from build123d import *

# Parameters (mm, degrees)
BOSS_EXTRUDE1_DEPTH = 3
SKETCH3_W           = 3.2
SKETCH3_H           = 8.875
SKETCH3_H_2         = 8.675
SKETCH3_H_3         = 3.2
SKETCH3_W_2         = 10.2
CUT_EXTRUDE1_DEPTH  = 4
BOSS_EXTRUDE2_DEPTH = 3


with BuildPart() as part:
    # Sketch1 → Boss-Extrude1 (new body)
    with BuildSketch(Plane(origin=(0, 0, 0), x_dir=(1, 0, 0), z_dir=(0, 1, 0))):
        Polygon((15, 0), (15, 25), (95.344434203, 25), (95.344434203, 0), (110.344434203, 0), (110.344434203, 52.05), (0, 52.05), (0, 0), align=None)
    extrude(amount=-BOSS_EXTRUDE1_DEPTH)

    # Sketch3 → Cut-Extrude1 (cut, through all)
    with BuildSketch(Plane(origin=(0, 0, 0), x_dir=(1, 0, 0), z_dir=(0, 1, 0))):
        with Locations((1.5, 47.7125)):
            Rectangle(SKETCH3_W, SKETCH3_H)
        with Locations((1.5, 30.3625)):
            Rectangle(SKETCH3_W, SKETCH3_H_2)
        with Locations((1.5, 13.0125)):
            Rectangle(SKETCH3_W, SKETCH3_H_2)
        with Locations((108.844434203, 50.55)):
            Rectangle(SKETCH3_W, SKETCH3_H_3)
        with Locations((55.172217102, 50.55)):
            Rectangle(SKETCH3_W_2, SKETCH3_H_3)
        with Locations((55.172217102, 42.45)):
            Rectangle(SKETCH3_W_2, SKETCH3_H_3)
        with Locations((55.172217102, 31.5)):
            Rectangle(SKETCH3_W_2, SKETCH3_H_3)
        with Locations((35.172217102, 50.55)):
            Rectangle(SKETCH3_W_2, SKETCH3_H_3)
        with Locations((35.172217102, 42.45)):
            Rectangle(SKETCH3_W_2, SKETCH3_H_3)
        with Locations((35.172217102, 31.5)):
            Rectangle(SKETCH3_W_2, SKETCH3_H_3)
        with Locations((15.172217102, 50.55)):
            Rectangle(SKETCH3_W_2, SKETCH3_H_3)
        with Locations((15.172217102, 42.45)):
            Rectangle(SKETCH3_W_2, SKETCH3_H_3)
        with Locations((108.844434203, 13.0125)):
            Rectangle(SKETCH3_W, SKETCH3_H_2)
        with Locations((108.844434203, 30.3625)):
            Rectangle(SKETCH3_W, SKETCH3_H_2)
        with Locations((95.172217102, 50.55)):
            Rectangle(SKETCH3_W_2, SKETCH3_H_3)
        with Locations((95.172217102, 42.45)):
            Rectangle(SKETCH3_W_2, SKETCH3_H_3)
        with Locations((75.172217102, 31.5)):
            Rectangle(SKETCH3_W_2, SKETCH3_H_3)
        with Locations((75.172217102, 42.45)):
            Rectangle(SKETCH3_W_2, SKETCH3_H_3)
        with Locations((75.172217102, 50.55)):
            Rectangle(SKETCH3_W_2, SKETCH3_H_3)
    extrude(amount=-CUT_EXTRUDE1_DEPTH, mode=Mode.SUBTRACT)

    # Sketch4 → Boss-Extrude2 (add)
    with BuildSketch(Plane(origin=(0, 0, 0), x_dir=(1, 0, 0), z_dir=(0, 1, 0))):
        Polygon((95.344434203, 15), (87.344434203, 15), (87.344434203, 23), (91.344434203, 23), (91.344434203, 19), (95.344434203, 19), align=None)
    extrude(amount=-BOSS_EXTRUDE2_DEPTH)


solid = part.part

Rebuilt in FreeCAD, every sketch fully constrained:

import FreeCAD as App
import Part
import Sketcher
from FreeCAD import Vector
Q = App.Units.Quantity

doc = App.newDocument("Part")
body = doc.addObject("PartDesign::Body", "Body")

# Sketch on XZ plane
sketch1 = doc.addObject("Sketcher::SketchObject", "Sketch")
body.addObject(sketch1)
sketch1.AttachmentSupport = (doc.XZ_Plane, [""])
sketch1.MapMode = "FlatFace"
sketch1.addGeometry([
    Part.LineSegment(Vector(15, 0, 0), Vector(15, -25, 0)),  # 0
    Part.LineSegment(Vector(15, -25, 0), Vector(95, -25, 0)),  # 1
    Part.LineSegment(Vector(95, -25, 0), Vector(95, 0, 0)),  # 2
    Part.LineSegment(Vector(95, 0, 0), Vector(110, 0, 0)),  # 3
    Part.LineSegment(Vector(110, 0, 0), Vector(110, -52, 0)),  # 4
    Part.LineSegment(Vector(110, -52, 0), Vector(0, -52, 0)),  # 5
    Part.LineSegment(Vector(0, -52, 0), Vector(0, 0, 0)),  # 6
    Part.LineSegment(Vector(0, 0, 0), Vector(15, 0, 0)),  # 7
], False)
sketch1.addConstraint([
    Sketcher.Constraint("Coincident", 0, 2, 1, 1),
    Sketcher.Constraint("Coincident", 1, 2, 2, 1),
    Sketcher.Constraint("Coincident", 2, 2, 3, 1),
    Sketcher.Constraint("Coincident", 3, 2, 4, 1),
    Sketcher.Constraint("Coincident", 4, 2, 5, 1),
    Sketcher.Constraint("Coincident", 5, 2, 6, 1),
    Sketcher.Constraint("Coincident", 6, 2, 7, 1),
    Sketcher.Constraint("Coincident", 7, 2, 0, 1),
    Sketcher.Constraint("Vertical", 0),
    Sketcher.Constraint("Horizontal", 1),
    Sketcher.Constraint("Vertical", 2),
    Sketcher.Constraint("Horizontal", 3),
    Sketcher.Constraint("Vertical", 4),
    Sketcher.Constraint("Horizontal", 5),
    Sketcher.Constraint("Vertical", 6),
    Sketcher.Constraint("Horizontal", 7),
    Sketcher.Constraint("Coincident", 6, 2, -1, 1),
    Sketcher.Constraint("PointOnObject", 2, 2, -1),
    Sketcher.Constraint("Equal", 3, 7),
    Sketcher.Constraint("DistanceX", 3, 1, 3, 2, Q("15 mm")),
    Sketcher.Constraint("DistanceY", 0, 2, 0, 1, Q("25 mm")),
    Sketcher.Constraint("DistanceY", 4, 2, 4, 1, Q("52.05 mm")),
    Sketcher.Constraint("DistanceX", 1, 1, 1, 2, Q("80.344434 mm")),
])
pad1 = doc.addObject("PartDesign::Pad", "Pad")
body.addObject(pad1)
pad1.Profile = sketch1
pad1.Length = 3

# Sketch on XZ plane
sketch2 = doc.addObject("Sketcher::SketchObject", "Sketch001")
body.addObject(sketch2)
sketch2.AttachmentSupport = (doc.XZ_Plane, [""])
sketch2.MapMode = "FlatFace"
sketch2.addGeometry([
    Part.LineSegment(Vector(-0.1, -52.1, 0), Vector(-0.1, -43.3, 0)),  # 0
    Part.LineSegment(Vector(-0.1, -43.3, 0), Vector(3.1, -43.3, 0)),  # 1
    Part.LineSegment(Vector(3.1, -43.3, 0), Vector(3.1, -52.1, 0)),  # 2
    Part.LineSegment(Vector(3.1, -52.1, 0), Vector(-0.1, -52.1, 0)),  # 3
    Part.LineSegment(Vector(-0.1, -34.7, 0), Vector(-0.1, -26, 0)),  # 4
    Part.LineSegment(Vector(-0.1, -26, 0), Vector(3.1, -26, 0)),  # 5
    Part.LineSegment(Vector(3.1, -26, 0), Vector(3.1, -34.7, 0)),  # 6
    Part.LineSegment(Vector(3.1, -34.7, 0), Vector(-0.1, -34.7, 0)),  # 7
    Part.LineSegment(Vector(-0.1, -17.4, 0), Vector(-0.1, -8.7, 0)),  # 8
    Part.LineSegment(Vector(-0.1, -8.7, 0), Vector(3.1, -8.7, 0)),  # 9
    Part.LineSegment(Vector(3.1, -8.7, 0), Vector(3.1, -17.4, 0)),  # 10
    Part.LineSegment(Vector(3.1, -17.4, 0), Vector(-0.1, -17.4, 0)),  # 11
    Part.LineSegment(Vector(107.2, -52.1, 0), Vector(107.2, -49, 0)),  # 12
    Part.LineSegment(Vector(107.2, -49, 0), Vector(110.4, -49, 0)),  # 13
    Part.LineSegment(Vector(110.4, -49, 0), Vector(110.4, -52.1, 0)),  # 14
    Part.LineSegment(Vector(110.4, -52.1, 0), Vector(107.2, -52.1, 0)),  # 15
    Part.LineSegment(Vector(50.1, -52.1, 0), Vector(50.1, -49, 0)),  # 16
    Part.LineSegment(Vector(50.1, -49, 0), Vector(60.3, -49, 0)),  # 17
    Part.LineSegment(Vector(60.3, -49, 0), Vector(60.3, -52.1, 0)),  # 18
    Part.LineSegment(Vector(60.3, -52.1, 0), Vector(50.1, -52.1, 0)),  # 19
    Part.LineSegment(Vector(50.1, -44, 0), Vector(50.1, -40.9, 0)),  # 20
    Part.LineSegment(Vector(50.1, -40.9, 0), Vector(60.3, -40.9, 0)),  # 21
    Part.LineSegment(Vector(60.3, -40.9, 0), Vector(60.3, -44, 0)),  # 22
    Part.LineSegment(Vector(60.3, -44, 0), Vector(50.1, -44, 0)),  # 23
    Part.LineSegment(Vector(50.1, -33.1, 0), Vector(50.1, -29.9, 0)),  # 24
    Part.LineSegment(Vector(50.1, -29.9, 0), Vector(60.3, -29.9, 0)),  # 25
    Part.LineSegment(Vector(60.3, -29.9, 0), Vector(60.3, -33.1, 0)),  # 26
    Part.LineSegment(Vector(60.3, -33.1, 0), Vector(50.1, -33.1, 0)),  # 27
    Part.LineSegment(Vector(30.1, -52.1, 0), Vector(30.1, -49, 0)),  # 28
    Part.LineSegment(Vector(30.1, -49, 0), Vector(40.3, -49, 0)),  # 29
    Part.LineSegment(Vector(40.3, -49, 0), Vector(40.3, -52.1, 0)),  # 30
    Part.LineSegment(Vector(40.3, -52.1, 0), Vector(30.1, -52.1, 0)),  # 31
    Part.LineSegment(Vector(30.1, -44, 0), Vector(30.1, -40.9, 0)),  # 32
    Part.LineSegment(Vector(30.1, -40.9, 0), Vector(40.3, -40.9, 0)),  # 33
    Part.LineSegment(Vector(40.3, -40.9, 0), Vector(40.3, -44, 0)),  # 34
    Part.LineSegment(Vector(40.3, -44, 0), Vector(30.1, -44, 0)),  # 35
    Part.LineSegment(Vector(30.1, -33.1, 0), Vector(30.1, -29.9, 0)),  # 36
    Part.LineSegment(Vector(30.1, -29.9, 0), Vector(40.3, -29.9, 0)),  # 37
    Part.LineSegment(Vector(40.3, -29.9, 0), Vector(40.3, -33.1, 0)),  # 38
    Part.LineSegment(Vector(40.3, -33.1, 0), Vector(30.1, -33.1, 0)),  # 39
    Part.LineSegment(Vector(10.1, -52.1, 0), Vector(10.1, -49, 0)),  # 40
    Part.LineSegment(Vector(10.1, -49, 0), Vector(20.3, -49, 0)),  # 41
    Part.LineSegment(Vector(20.3, -49, 0), Vector(20.3, -52.1, 0)),  # 42
    Part.LineSegment(Vector(20.3, -52.1, 0), Vector(10.1, -52.1, 0)),  # 43
    Part.LineSegment(Vector(10.1, -44, 0), Vector(10.1, -40.9, 0)),  # 44
    Part.LineSegment(Vector(10.1, -40.9, 0), Vector(20.3, -40.9, 0)),  # 45
    Part.LineSegment(Vector(20.3, -40.9, 0), Vector(20.3, -44, 0)),  # 46
    Part.LineSegment(Vector(20.3, -44, 0), Vector(10.1, -44, 0)),  # 47
    Part.LineSegment(Vector(107.2, -17.4, 0), Vector(107.2, -8.7, 0)),  # 48
    Part.LineSegment(Vector(107.2, -8.7, 0), Vector(110.4, -8.7, 0)),  # 49
    Part.LineSegment(Vector(110.4, -8.7, 0), Vector(110.4, -17.4, 0)),  # 50
    Part.LineSegment(Vector(110.4, -17.4, 0), Vector(107.2, -17.4, 0)),  # 51
    Part.LineSegment(Vector(107.2, -34.7, 0), Vector(107.2, -26, 0)),  # 52
    Part.LineSegment(Vector(107.2, -26, 0), Vector(110.4, -26, 0)),  # 53
    Part.LineSegment(Vector(110.4, -26, 0), Vector(110.4, -34.7, 0)),  # 54
    Part.LineSegment(Vector(110.4, -34.7, 0), Vector(107.2, -34.7, 0)),  # 55
    Part.LineSegment(Vector(90.1, -52.1, 0), Vector(90.1, -49, 0)),  # 56
    Part.LineSegment(Vector(90.1, -49, 0), Vector(100.3, -49, 0)),  # 57
    Part.LineSegment(Vector(100.3, -49, 0), Vector(100.3, -52.1, 0)),  # 58
    Part.LineSegment(Vector(100.3, -52.1, 0), Vector(90.1, -52.1, 0)),  # 59
    Part.LineSegment(Vector(90.1, -44, 0), Vector(90.1, -40.9, 0)),  # 60
    Part.LineSegment(Vector(90.1, -40.9, 0), Vector(100.3, -40.9, 0)),  # 61
    Part.LineSegment(Vector(100.3, -40.9, 0), Vector(100.3, -44, 0)),  # 62
    Part.LineSegment(Vector(100.3, -44, 0), Vector(90.1, -44, 0)),  # 63
    Part.LineSegment(Vector(70.1, -33.1, 0), Vector(70.1, -29.9, 0)),  # 64
    Part.LineSegment(Vector(70.1, -29.9, 0), Vector(80.3, -29.9, 0)),  # 65
    Part.LineSegment(Vector(80.3, -29.9, 0), Vector(80.3, -33.1, 0)),  # 66
    Part.LineSegment(Vector(80.3, -33.1, 0), Vector(70.1, -33.1, 0)),  # 67
    Part.LineSegment(Vector(70.1, -44, 0), Vector(70.1, -40.9, 0)),  # 68
    Part.LineSegment(Vector(70.1, -40.9, 0), Vector(80.3, -40.9, 0)),  # 69
    Part.LineSegment(Vector(80.3, -40.9, 0), Vector(80.3, -44, 0)),  # 70
    Part.LineSegment(Vector(80.3, -44, 0), Vector(70.1, -44, 0)),  # 71
    Part.LineSegment(Vector(70.1, -52.1, 0), Vector(70.1, -49, 0)),  # 72
    Part.LineSegment(Vector(70.1, -49, 0), Vector(80.3, -49, 0)),  # 73
    Part.LineSegment(Vector(80.3, -49, 0), Vector(80.3, -52.1, 0)),  # 74
    Part.LineSegment(Vector(80.3, -52.1, 0), Vector(70.1, -52.1, 0)),  # 75
], False)
sketch2.addConstraint([
    Sketcher.Constraint("Coincident", 0, 2, 1, 1),
    Sketcher.Constraint("Coincident", 1, 2, 2, 1),
    Sketcher.Constraint("Coincident", 2, 2, 3, 1),
    Sketcher.Constraint("Coincident", 3, 2, 0, 1),
    Sketcher.Constraint("Coincident", 4, 2, 5, 1),
    Sketcher.Constraint("Coincident", 5, 2, 6, 1),
    Sketcher.Constraint("Coincident", 6, 2, 7, 1),
    Sketcher.Constraint("Coincident", 7, 2, 4, 1),
    Sketcher.Constraint("Coincident", 8, 2, 9, 1),
    Sketcher.Constraint("Coincident", 9, 2, 10, 1),
    Sketcher.Constraint("Coincident", 10, 2, 11, 1),
    Sketcher.Constraint("Coincident", 11, 2, 8, 1),
    Sketcher.Constraint("Coincident", 12, 2, 13, 1),
    Sketcher.Constraint("Coincident", 13, 2, 14, 1),
    Sketcher.Constraint("Coincident", 14, 2, 15, 1),
    Sketcher.Constraint("Coincident", 15, 2, 12, 1),
    Sketcher.Constraint("Coincident", 16, 2, 17, 1),
    Sketcher.Constraint("Coincident", 17, 2, 18, 1),
    Sketcher.Constraint("Coincident", 18, 2, 19, 1),
    Sketcher.Constraint("Coincident", 19, 2, 16, 1),
    Sketcher.Constraint("Coincident", 20, 2, 21, 1),
    Sketcher.Constraint("Coincident", 21, 2, 22, 1),
    Sketcher.Constraint("Coincident", 22, 2, 23, 1),
    Sketcher.Constraint("Coincident", 23, 2, 20, 1),
    Sketcher.Constraint("Coincident", 24, 2, 25, 1),
    Sketcher.Constraint("Coincident", 25, 2, 26, 1),
    Sketcher.Constraint("Coincident", 26, 2, 27, 1),
    Sketcher.Constraint("Coincident", 27, 2, 24, 1),
    Sketcher.Constraint("Coincident", 28, 2, 29, 1),
    Sketcher.Constraint("Coincident", 29, 2, 30, 1),
    Sketcher.Constraint("Coincident", 30, 2, 31, 1),
    Sketcher.Constraint("Coincident", 31, 2, 28, 1),
    Sketcher.Constraint("Coincident", 32, 2, 33, 1),
    Sketcher.Constraint("Coincident", 33, 2, 34, 1),
    Sketcher.Constraint("Coincident", 34, 2, 35, 1),
    Sketcher.Constraint("Coincident", 35, 2, 32, 1),
    Sketcher.Constraint("Coincident", 36, 2, 37, 1),
    Sketcher.Constraint("Coincident", 37, 2, 38, 1),
    Sketcher.Constraint("Coincident", 38, 2, 39, 1),
    Sketcher.Constraint("Coincident", 39, 2, 36, 1),
    Sketcher.Constraint("Coincident", 40, 2, 41, 1),
    Sketcher.Constraint("Coincident", 41, 2, 42, 1),
    Sketcher.Constraint("Coincident", 42, 2, 43, 1),
    Sketcher.Constraint("Coincident", 43, 2, 40, 1),
    Sketcher.Constraint("Coincident", 44, 2, 45, 1),
    Sketcher.Constraint("Coincident", 45, 2, 46, 1),
    Sketcher.Constraint("Coincident", 46, 2, 47, 1),
    Sketcher.Constraint("Coincident", 47, 2, 44, 1),
    Sketcher.Constraint("Coincident", 48, 2, 49, 1),
    Sketcher.Constraint("Coincident", 49, 2, 50, 1),
    Sketcher.Constraint("Coincident", 50, 2, 51, 1),
    Sketcher.Constraint("Coincident", 51, 2, 48, 1),
    Sketcher.Constraint("Coincident", 52, 2, 53, 1),
    Sketcher.Constraint("Coincident", 53, 2, 54, 1),
    Sketcher.Constraint("Coincident", 54, 2, 55, 1),
    Sketcher.Constraint("Coincident", 55, 2, 52, 1),
    Sketcher.Constraint("Coincident", 56, 2, 57, 1),
    Sketcher.Constraint("Coincident", 57, 2, 58, 1),
    Sketcher.Constraint("Coincident", 58, 2, 59, 1),
    Sketcher.Constraint("Coincident", 59, 2, 56, 1),
    Sketcher.Constraint("Coincident", 60, 2, 61, 1),
    Sketcher.Constraint("Coincident", 61, 2, 62, 1),
    Sketcher.Constraint("Coincident", 62, 2, 63, 1),
    Sketcher.Constraint("Coincident", 63, 2, 60, 1),
    Sketcher.Constraint("Coincident", 64, 2, 65, 1),
    Sketcher.Constraint("Coincident", 65, 2, 66, 1),
    Sketcher.Constraint("Coincident", 66, 2, 67, 1),
    Sketcher.Constraint("Coincident", 67, 2, 64, 1),
    Sketcher.Constraint("Coincident", 68, 2, 69, 1),
    Sketcher.Constraint("Coincident", 69, 2, 70, 1),
    Sketcher.Constraint("Coincident", 70, 2, 71, 1),
    Sketcher.Constraint("Coincident", 71, 2, 68, 1),
    Sketcher.Constraint("Coincident", 72, 2, 73, 1),
    Sketcher.Constraint("Coincident", 73, 2, 74, 1),
    Sketcher.Constraint("Coincident", 74, 2, 75, 1),
    Sketcher.Constraint("Coincident", 75, 2, 72, 1),
    Sketcher.Constraint("Vertical", 0),
    Sketcher.Constraint("Horizontal", 1),
    Sketcher.Constraint("Vertical", 2),
    Sketcher.Constraint("Horizontal", 3),
    Sketcher.Constraint("Vertical", 4),
    Sketcher.Constraint("Horizontal", 5),
    Sketcher.Constraint("Vertical", 6),
    Sketcher.Constraint("Horizontal", 7),
    Sketcher.Constraint("Vertical", 8),
    Sketcher.Constraint("Horizontal", 9),
    Sketcher.Constraint("Vertical", 10),
    Sketcher.Constraint("Horizontal", 11),
    Sketcher.Constraint("Vertical", 12),
    Sketcher.Constraint("Horizontal", 13),
    Sketcher.Constraint("Vertical", 14),
    Sketcher.Constraint("Horizontal", 15),
    Sketcher.Constraint("Vertical", 16),
    Sketcher.Constraint("Horizontal", 17),
    Sketcher.Constraint("Vertical", 18),
    Sketcher.Constraint("Horizontal", 19),
    Sketcher.Constraint("Vertical", 20),
    Sketcher.Constraint("Horizontal", 21),
    Sketcher.Constraint("Vertical", 22),
    Sketcher.Constraint("Horizontal", 23),
    Sketcher.Constraint("Vertical", 24),
    Sketcher.Constraint("Horizontal", 25),
    Sketcher.Constraint("Vertical", 26),
    Sketcher.Constraint("Horizontal", 27),
    Sketcher.Constraint("Vertical", 28),
    Sketcher.Constraint("Horizontal", 29),
    Sketcher.Constraint("Vertical", 30),
    Sketcher.Constraint("Horizontal", 31),
    Sketcher.Constraint("Vertical", 32),
    Sketcher.Constraint("Horizontal", 33),
    Sketcher.Constraint("Vertical", 34),
    Sketcher.Constraint("Horizontal", 35),
    Sketcher.Constraint("Vertical", 36),
    Sketcher.Constraint("Horizontal", 37),
    Sketcher.Constraint("Vertical", 38),
    Sketcher.Constraint("Horizontal", 39),
    Sketcher.Constraint("Vertical", 40),
    Sketcher.Constraint("Horizontal", 41),
    Sketcher.Constraint("Vertical", 42),
    Sketcher.Constraint("Horizontal", 43),
    Sketcher.Constraint("Vertical", 44),
    Sketcher.Constraint("Horizontal", 45),
    Sketcher.Constraint("Vertical", 46),
    Sketcher.Constraint("Horizontal", 47),
    Sketcher.Constraint("Vertical", 48),
    Sketcher.Constraint("Horizontal", 49),
    Sketcher.Constraint("Vertical", 50),
    Sketcher.Constraint("Horizontal", 51),
    Sketcher.Constraint("Vertical", 52),
    Sketcher.Constraint("Horizontal", 53),
    Sketcher.Constraint("Vertical", 54),
    Sketcher.Constraint("Horizontal", 55),
    Sketcher.Constraint("Vertical", 56),
    Sketcher.Constraint("Horizontal", 57),
    Sketcher.Constraint("Vertical", 58),
    Sketcher.Constraint("Horizontal", 59),
    Sketcher.Constraint("Vertical", 60),
    Sketcher.Constraint("Horizontal", 61),
    Sketcher.Constraint("Vertical", 62),
    Sketcher.Constraint("Horizontal", 63),
    Sketcher.Constraint("Vertical", 64),
    Sketcher.Constraint("Horizontal", 65),
    Sketcher.Constraint("Vertical", 66),
    Sketcher.Constraint("Horizontal", 67),
    Sketcher.Constraint("Vertical", 68),
    Sketcher.Constraint("Horizontal", 69),
    Sketcher.Constraint("Vertical", 70),
    Sketcher.Constraint("Horizontal", 71),
    Sketcher.Constraint("Vertical", 72),
    Sketcher.Constraint("Horizontal", 73),
    Sketcher.Constraint("Vertical", 74),
    Sketcher.Constraint("Horizontal", 75),
    Sketcher.Constraint("Horizontal", 3, 2, 14, 2),
    Sketcher.Constraint("Horizontal", 13, 2, 16, 2),
    Sketcher.Constraint("Horizontal", 15, 2, 18, 2),
    Sketcher.Constraint("Horizontal", 17, 2, 28, 2),
    Sketcher.Constraint("Horizontal", 19, 2, 30, 2),
    Sketcher.Constraint("Horizontal", 21, 2, 32, 2),
    Sketcher.Constraint("Horizontal", 23, 2, 34, 2),
    Sketcher.Constraint("Horizontal", 25, 2, 36, 2),
    Sketcher.Constraint("Horizontal", 27, 2, 38, 2),
    Sketcher.Constraint("Horizontal", 29, 2, 40, 2),
    Sketcher.Constraint("Horizontal", 31, 2, 42, 2),
    Sketcher.Constraint("Horizontal", 33, 2, 44, 2),
    Sketcher.Constraint("Horizontal", 35, 2, 46, 2),
    Sketcher.Constraint("Horizontal", 9, 2, 48, 2),
    Sketcher.Constraint("Horizontal", 11, 2, 50, 2),
    Sketcher.Constraint("Horizontal", 5, 2, 52, 2),
    Sketcher.Constraint("Horizontal", 7, 2, 54, 2),
    Sketcher.Constraint("Horizontal", 41, 2, 56, 2),
    Sketcher.Constraint("Horizontal", 43, 2, 58, 2),
    Sketcher.Constraint("Horizontal", 45, 2, 60, 2),
    Sketcher.Constraint("Horizontal", 47, 2, 62, 2),
    Sketcher.Constraint("Horizontal", 37, 2, 64, 2),
    Sketcher.Constraint("Horizontal", 39, 2, 66, 2),
    Sketcher.Constraint("Horizontal", 61, 2, 68, 2),
    Sketcher.Constraint("Horizontal", 63, 2, 70, 2),
    Sketcher.Constraint("Horizontal", 57, 2, 72, 2),
    Sketcher.Constraint("Horizontal", 59, 2, 74, 2),
    Sketcher.Constraint("Vertical", 3, 2, 4, 2),
    Sketcher.Constraint("Vertical", 2, 2, 5, 2),
    Sketcher.Constraint("Vertical", 7, 2, 8, 2),
    Sketcher.Constraint("Vertical", 6, 2, 9, 2),
    Sketcher.Constraint("Vertical", 19, 2, 20, 2),
    Sketcher.Constraint("Vertical", 18, 2, 21, 2),
    Sketcher.Constraint("Vertical", 23, 2, 24, 2),
    Sketcher.Constraint("Vertical", 22, 2, 25, 2),
    Sketcher.Constraint("Vertical", 31, 2, 32, 2),
    Sketcher.Constraint("Vertical", 30, 2, 33, 2),
    Sketcher.Constraint("Vertical", 35, 2, 36, 2),
    Sketcher.Constraint("Vertical", 34, 2, 37, 2),
    Sketcher.Constraint("Vertical", 43, 2, 44, 2),
    Sketcher.Constraint("Vertical", 42, 2, 45, 2),
    Sketcher.Constraint("Vertical", 15, 2, 48, 2),
    Sketcher.Constraint("Vertical", 14, 2, 49, 2),
    Sketcher.Constraint("Vertical", 51, 2, 52, 2),
    Sketcher.Constraint("Vertical", 50, 2, 53, 2),
    Sketcher.Constraint("Vertical", 59, 2, 60, 2),
    Sketcher.Constraint("Vertical", 58, 2, 61, 2),
    Sketcher.Constraint("Vertical", 67, 2, 68, 2),
    Sketcher.Constraint("Vertical", 66, 2, 69, 2),
    Sketcher.Constraint("Vertical", 71, 2, 72, 2),
    Sketcher.Constraint("Vertical", 70, 2, 73, 2),
    Sketcher.Constraint("Equal", 11, 13),
    Sketcher.Constraint("Equal", 27, 29),
    Sketcher.Constraint("Equal", 39, 41),
    Sketcher.Constraint("Equal", 47, 57),
    Sketcher.Constraint("Equal", 63, 65),
    Sketcher.Constraint("Equal", 6, 8),
    Sketcher.Constraint("Equal", 55, 12),
    Sketcher.Constraint("Equal", 18, 20),
    Sketcher.Constraint("Equal", 22, 24),
    Sketcher.Constraint("DistanceX", 1, 1, 1, 2, Q("3.2 mm")),
    Sketcher.Constraint("DistanceX", 17, 1, 17, 2, Q("10.2 mm")),
    Sketcher.Constraint("DistanceX", 0, 2, -1, 1, Q("0.1 mm")),
    Sketcher.Constraint("DistanceY", 6, 2, -1, 1, Q("34.7 mm")),
    Sketcher.Constraint("DistanceY", 24, 2, -1, 1, Q("29.9 mm")),
    Sketcher.Constraint("DistanceY", 0, 1, 0, 2, Q("8.875 mm")),
    Sketcher.Constraint("DistanceY", 4, 1, 4, 2, Q("8.675 mm")),
    Sketcher.Constraint("DistanceY", 2, 2, -1, 1, Q("52.15 mm")),
    Sketcher.Constraint("DistanceY", 10, 2, -1, 1, Q("17.35 mm")),
    Sketcher.Constraint("DistanceY", 20, 2, -1, 1, Q("40.85 mm")),
    Sketcher.Constraint("DistanceX", -1, 1, 12, 2, Q("107.244434 mm")),
    Sketcher.Constraint("DistanceX", -1, 1, 16, 2, Q("50.072217 mm")),
    Sketcher.Constraint("DistanceX", -1, 1, 28, 2, Q("30.072217 mm")),
    Sketcher.Constraint("DistanceX", -1, 1, 40, 2, Q("10.072217 mm")),
    Sketcher.Constraint("DistanceX", -1, 1, 56, 2, Q("90.072217 mm")),
    Sketcher.Constraint("DistanceX", -1, 1, 64, 2, Q("70.072217 mm")),
])
pocket1 = doc.addObject("PartDesign::Pocket", "Pocket")
body.addObject(pocket1)
pocket1.Profile = sketch2
pocket1.Type = "ThroughAll"
pocket1.Reversed = True

# Sketch on XZ plane
sketch3 = doc.addObject("Sketcher::SketchObject", "Sketch002")
body.addObject(sketch3)
sketch3.AttachmentSupport = (doc.XZ_Plane, [""])
sketch3.MapMode = "FlatFace"
sketch3.addGeometry([
    Part.LineSegment(Vector(87.3, -15, 0), Vector(95.3, -15, 0)),  # 0
    Part.LineSegment(Vector(95.3, -15, 0), Vector(95.3, -19, 0)),  # 1
    Part.LineSegment(Vector(95.3, -19, 0), Vector(91.3, -19, 0)),  # 2
    Part.LineSegment(Vector(91.3, -19, 0), Vector(91.3, -23, 0)),  # 3
    Part.LineSegment(Vector(91.3, -23, 0), Vector(87.3, -23, 0)),  # 4
    Part.LineSegment(Vector(87.3, -23, 0), Vector(87.3, -15, 0)),  # 5
], False)
sketch3.addConstraint([
    Sketcher.Constraint("Coincident", 0, 2, 1, 1),
    Sketcher.Constraint("Coincident", 1, 2, 2, 1),
    Sketcher.Constraint("Coincident", 2, 2, 3, 1),
    Sketcher.Constraint("Coincident", 3, 2, 4, 1),
    Sketcher.Constraint("Coincident", 4, 2, 5, 1),
    Sketcher.Constraint("Coincident", 5, 2, 0, 1),
    Sketcher.Constraint("Horizontal", 0),
    Sketcher.Constraint("Vertical", 1),
    Sketcher.Constraint("Horizontal", 2),
    Sketcher.Constraint("Vertical", 3),
    Sketcher.Constraint("Horizontal", 4),
    Sketcher.Constraint("Vertical", 5),
    Sketcher.Constraint("Equal", 2, 4),
    Sketcher.Constraint("Equal", 4, 1),
    Sketcher.Constraint("Equal", 1, 3),
    Sketcher.Constraint("DistanceX", 0, 1, 0, 2, Q("8 mm")),
    Sketcher.Constraint("DistanceY", 0, 2, -1, 1, Q("15 mm")),
    Sketcher.Constraint("DistanceX", -1, 1, 0, 2, Q("95.344434 mm")),
])
pad2 = doc.addObject("PartDesign::Pad", "Pad001")
body.addObject(pad2)
pad2.Profile = sketch3
pad2.Length = 3

doc.recompute()
